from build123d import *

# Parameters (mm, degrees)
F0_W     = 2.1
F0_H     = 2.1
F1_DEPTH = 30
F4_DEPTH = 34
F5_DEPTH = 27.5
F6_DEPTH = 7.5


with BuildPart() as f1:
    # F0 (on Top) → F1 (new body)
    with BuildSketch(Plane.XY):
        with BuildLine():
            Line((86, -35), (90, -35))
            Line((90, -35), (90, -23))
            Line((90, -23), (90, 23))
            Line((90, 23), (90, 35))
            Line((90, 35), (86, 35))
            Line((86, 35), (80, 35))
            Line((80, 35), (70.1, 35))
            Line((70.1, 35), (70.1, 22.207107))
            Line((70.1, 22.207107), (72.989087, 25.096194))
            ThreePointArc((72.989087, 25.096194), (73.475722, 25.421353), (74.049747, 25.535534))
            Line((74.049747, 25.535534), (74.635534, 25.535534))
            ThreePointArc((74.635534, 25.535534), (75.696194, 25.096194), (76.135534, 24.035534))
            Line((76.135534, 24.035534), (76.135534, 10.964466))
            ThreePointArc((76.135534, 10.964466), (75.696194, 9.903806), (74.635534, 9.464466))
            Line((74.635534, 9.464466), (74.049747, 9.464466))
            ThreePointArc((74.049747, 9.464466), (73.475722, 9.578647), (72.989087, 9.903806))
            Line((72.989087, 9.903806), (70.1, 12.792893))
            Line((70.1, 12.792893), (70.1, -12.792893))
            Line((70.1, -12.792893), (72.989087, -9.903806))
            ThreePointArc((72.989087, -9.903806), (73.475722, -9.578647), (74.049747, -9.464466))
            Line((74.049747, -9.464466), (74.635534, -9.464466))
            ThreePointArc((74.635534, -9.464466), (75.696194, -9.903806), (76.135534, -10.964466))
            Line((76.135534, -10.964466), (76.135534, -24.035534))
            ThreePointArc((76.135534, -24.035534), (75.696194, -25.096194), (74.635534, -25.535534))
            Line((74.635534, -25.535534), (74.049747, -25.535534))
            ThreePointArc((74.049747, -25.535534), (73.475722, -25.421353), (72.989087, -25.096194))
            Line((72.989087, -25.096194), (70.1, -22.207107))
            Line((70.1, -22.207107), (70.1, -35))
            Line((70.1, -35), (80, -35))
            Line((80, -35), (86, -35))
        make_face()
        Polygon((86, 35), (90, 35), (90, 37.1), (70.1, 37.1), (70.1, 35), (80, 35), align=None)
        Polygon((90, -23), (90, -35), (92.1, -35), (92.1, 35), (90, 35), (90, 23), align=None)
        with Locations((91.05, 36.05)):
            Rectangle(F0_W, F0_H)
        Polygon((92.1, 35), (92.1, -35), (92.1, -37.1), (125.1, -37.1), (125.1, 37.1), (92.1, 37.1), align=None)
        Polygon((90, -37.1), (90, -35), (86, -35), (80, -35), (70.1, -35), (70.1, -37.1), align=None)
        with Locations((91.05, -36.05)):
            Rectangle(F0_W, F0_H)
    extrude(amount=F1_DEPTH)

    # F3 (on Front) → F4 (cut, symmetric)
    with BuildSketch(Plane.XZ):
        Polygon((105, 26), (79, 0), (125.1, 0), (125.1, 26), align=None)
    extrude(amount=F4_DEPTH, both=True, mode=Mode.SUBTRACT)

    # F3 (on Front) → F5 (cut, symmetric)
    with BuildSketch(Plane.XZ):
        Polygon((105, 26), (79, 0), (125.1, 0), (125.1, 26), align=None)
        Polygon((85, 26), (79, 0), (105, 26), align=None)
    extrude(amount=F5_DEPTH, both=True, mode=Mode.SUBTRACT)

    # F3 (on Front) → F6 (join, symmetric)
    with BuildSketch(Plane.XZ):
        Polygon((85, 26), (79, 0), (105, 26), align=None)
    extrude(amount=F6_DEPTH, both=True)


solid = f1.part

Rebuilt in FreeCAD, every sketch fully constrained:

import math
import FreeCAD as App
import Part
import Sketcher
Q = App.Units.Quantity

doc = App.newDocument("Part")
body = doc.addObject("PartDesign::Body", "Body")

# Sketch on XY plane
sketch1 = doc.addObject("Sketcher::SketchObject", "Sketch")
body.addObject(sketch1)
sketch1.AttachmentSupport = (doc.XY_Plane, [""])
sketch1.MapMode = "FlatFace"
sketch1.addGeometry(Part.LineSegment(App.Vector(70.1, 37.1, 0), App.Vector(70.1, 22.207107, 0)), False)
sketch1.addGeometry(Part.LineSegment(App.Vector(70.1, 22.207107, 0), App.Vector(72.989087, 25.096194, 0)), False)
sketch1.addGeometry(Part.ArcOfCircle(Part.Circle(App.Vector(74.049748, 24.035532, 0), App.Vector(0, 0, 1), 1.500002), math.radians(90.000052), math.radians(134.999971)), False)
sketch1.addGeometry(Part.LineSegment(App.Vector(74.049747, 25.535534, 0), App.Vector(74.635534, 25.535534, 0)), False)
sketch1.addGeometry(Part.ArcOfCircle(Part.Circle(App.Vector(74.635533, 24.035533, 0), App.Vector(0, 0, 1), 1.500001), math.radians(0.000022), math.radians(89.999978)), False)
sketch1.addGeometry(Part.LineSegment(App.Vector(76.135534, 24.035534, 0), App.Vector(76.135534, 10.964466, 0)), False)
sketch1.addGeometry(Part.ArcOfCircle(Part.Circle(App.Vector(74.635533, 10.964467, 0), App.Vector(0, 0, 1), 1.500001), math.radians(-89.999978), math.radians(-0.000022)), False)
sketch1.addGeometry(Part.LineSegment(App.Vector(74.635534, 9.464466, 0), App.Vector(74.049747, 9.464466, 0)), False)
sketch1.addGeometry(Part.ArcOfCircle(Part.Circle(App.Vector(74.049748, 10.964468, 0), App.Vector(0, 0, 1), 1.500002), math.radians(-134.999971), math.radians(-90.000052)), False)
sketch1.addGeometry(Part.LineSegment(App.Vector(72.989087, 9.903806, 0), App.Vector(70.1, 12.792893, 0)), False)
sketch1.addGeometry(Part.LineSegment(App.Vector(70.1, 12.792893, 0), App.Vector(70.1, -12.792893, 0)), False)
sketch1.addGeometry(Part.LineSegment(App.Vector(70.1, -12.792893, 0), App.Vector(72.989087, -9.903806, 0)), False)
sketch1.addGeometry(Part.ArcOfCircle(Part.Circle(App.Vector(74.049748, -10.964468, 0), App.Vector(0, 0, 1), 1.500002), math.radians(90.000052), math.radians(134.999971)), False)
sketch1.addGeometry(Part.LineSegment(App.Vector(74.049747, -9.464466, 0), App.Vector(74.635534, -9.464466, 0)), False)
sketch1.addGeometry(Part.ArcOfCircle(Part.Circle(App.Vector(74.635533, -10.964467, 0), App.Vector(0, 0, 1), 1.500001), math.radians(0.000022), math.radians(89.999978)), False)
sketch1.addGeometry(Part.LineSegment(App.Vector(76.135534, -10.964466, 0), App.Vector(76.135534, -24.035534, 0)), False)
sketch1.addGeometry(Part.ArcOfCircle(Part.Circle(App.Vector(74.635533, -24.035533, 0), App.Vector(0, 0, 1), 1.500001), math.radians(-89.999978), math.radians(-0.000022)), False)
sketch1.addGeometry(Part.LineSegment(App.Vector(74.635534, -25.535534, 0), App.Vector(74.049747, -25.535534, 0)), False)
sketch1.addGeometry(Part.ArcOfCircle(Part.Circle(App.Vector(74.049748, -24.035532, 0), App.Vector(0, 0, 1), 1.500002), math.radians(-134.999971), math.radians(-90.000052)), False)
sketch1.addGeometry(Part.LineSegment(App.Vector(72.989087, -25.096194, 0), App.Vector(70.1, -22.207107, 0)), False)
sketch1.addGeometry(Part.LineSegment(App.Vector(70.1, -22.207107, 0), App.Vector(70.1, -37.1, 0)), False)
sketch1.addGeometry(Part.LineSegment(App.Vector(70.1, -37.1, 0), App.Vector(125.1, -37.1, 0)), False)
sketch1.addGeometry(Part.LineSegment(App.Vector(125.1, -37.1, 0), App.Vector(125.1, 37.1, 0)), False)
sketch1.addGeometry(Part.LineSegment(App.Vector(125.1, 37.1, 0), App.Vector(70.1, 37.1, 0)), False)
sketch1.addConstraint(Sketcher.Constraint("Coincident", 0, 2, 1, 1))
sketch1.addConstraint(Sketcher.Constraint("Tangent", 1, 2, 2, 2))
sketch1.addConstraint(Sketcher.Constraint("Tangent", 2, 1, 3, 1))
sketch1.addConstraint(Sketcher.Constraint("Tangent", 3, 2, 4, 2))
sketch1.addConstraint(Sketcher.Constraint("Tangent", 4, 1, 5, 1))
sketch1.addConstraint(Sketcher.Constraint("Tangent", 5, 2, 6, 2))
sketch1.addConstraint(Sketcher.Constraint("Tangent", 6, 1, 7, 1))
sketch1.addConstraint(Sketcher.Constraint("Tangent", 7, 2, 8, 2))
sketch1.addConstraint(Sketcher.Constraint("Tangent", 8, 1, 9, 1))
sketch1.addConstraint(Sketcher.Constraint("Coincident", 9, 2, 10, 1))
sketch1.addConstraint(Sketcher.Constraint("Coincident", 10, 2, 11, 1))
sketch1.addConstraint(Sketcher.Constraint("Tangent", 11, 2, 12, 2))
sketch1.addConstraint(Sketcher.Constraint("Tangent", 12, 1, 13, 1))
sketch1.addConstraint(Sketcher.Constraint("Tangent", 13, 2, 14, 2))
sketch1.addConstraint(Sketcher.Constraint("Tangent", 14, 1, 15, 1))
sketch1.addConstraint(Sketcher.Constraint("Tangent", 15, 2, 16, 2))
sketch1.addConstraint(Sketcher.Constraint("Tangent", 16, 1, 17, 1))
sketch1.addConstraint(Sketcher.Constraint("Tangent", 17, 2, 18, 2))
sketch1.addConstraint(Sketcher.Constraint("Tangent", 18, 1, 19, 1))
sketch1.addConstraint(Sketcher.Constraint("Coincident", 19, 2, 20, 1))
sketch1.addConstraint(Sketcher.Constraint("Coincident", 20, 2, 21, 1))
sketch1.addConstraint(Sketcher.Constraint("Coincident", 21, 2, 22, 1))
sketch1.addConstraint(Sketcher.Constraint("Coincident", 22, 2, 23, 1))
sketch1.addConstraint(Sketcher.Constraint("Coincident", 23, 2, 0, 1))
sketch1.addConstraint(Sketcher.Constraint("Vertical", 0))
sketch1.addConstraint(Sketcher.Constraint("Horizontal", 3))
sketch1.addConstraint(Sketcher.Constraint("Vertical", 5))
sketch1.addConstraint(Sketcher.Constraint("Horizontal", 7))
sketch1.addConstraint(Sketcher.Constraint("Vertical", 10))
sketch1.addConstraint(Sketcher.Constraint("Horizontal", 13))
sketch1.addConstraint(Sketcher.Constraint("Vertical", 15))
sketch1.addConstraint(Sketcher.Constraint("Horizontal", 17))
sketch1.addConstraint(Sketcher.Constraint("Vertical", 20))
sketch1.addConstraint(Sketcher.Constraint("Horizontal", 21))
sketch1.addConstraint(Sketcher.Constraint("Vertical", 22))
sketch1.addConstraint(Sketcher.Constraint("Horizontal", 23))
sketch1.addConstraint(Sketcher.Constraint("Equal", 2, 4))
sketch1.addConstraint(Sketcher.Constraint("Equal", 4, 6))
sketch1.addConstraint(Sketcher.Constraint("Equal", 6, 8))
sketch1.addConstraint(Sketcher.Constraint("Equal", 8, 12))
sketch1.addConstraint(Sketcher.Constraint("Equal", 12, 14))
sketch1.addConstraint(Sketcher.Constraint("Equal", 14, 16))
sketch1.addConstraint(Sketcher.Constraint("Equal", 16, 18))
sketch1.addConstraint(Sketcher.Constraint("Symmetric", 8, 3, 12, 3, -1))
sketch1.addConstraint(Sketcher.Constraint("Symmetric", 4, 3, 16, 3, -1))
sketch1.addConstraint(Sketcher.Constraint("Symmetric", 1, 2, 18, 1, -1))
sketch1.addConstraint(Sketcher.Constraint("Symmetric", 20, 2, 23, 2, -1))
sketch1.addConstraint(Sketcher.Constraint("Perpendicular", 1, 9))
sketch1.addConstraint(Sketcher.Constraint("Perpendicular", 9, 11))
sketch1.addConstraint(Sketcher.Constraint("Perpendicular", 11, 19))
sketch1.addConstraint(Sketcher.Constraint("Vertical", 2, 3, 8, 3))
sketch1.addConstraint(Sketcher.Constraint("Vertical", 0, 2, 9, 2))
sketch1.addConstraint(Sketcher.Constraint("Radius", 4, Q("1.500001 mm")))
sketch1.addConstraint(Sketcher.Constraint("DistanceX", 21, 1, 21, 2, Q("55 mm")))
sketch1.addConstraint(Sketcher.Constraint("DistanceY", 22, 1, 22, 2, Q("74.2 mm")))
sketch1.addConstraint(Sketcher.Constraint("DistanceY", 12, 3, 2, 3, Q("35 mm")))
sketch1.addConstraint(Sketcher.Constraint("DistanceX", -1, 1, 0, 2, Q("70.1 mm")))
sketch1.addConstraint(Sketcher.Constraint("DistanceX", 3, 1, 3, 2, Q("0.585787 mm")))
sketch1.addConstraint(Sketcher.Constraint("DistanceY", 0, 2, 0, 1, Q("14.892893 mm")))
sketch1.addConstraint(Sketcher.Constraint("DistanceY", 5, 2, 5, 1, Q("13.071068 mm")))
pad1 = doc.addObject("PartDesign::Pad", "Pad")
body.addObject(pad1)
pad1.Profile = sketch1
pad1.Length = 30

# Sketch on XZ plane
sketch2 = doc.addObject("Sketcher::SketchObject", "Sketch001")
body.addObject(sketch2)
sketch2.AttachmentSupport = (doc.XZ_Plane, [""])
sketch2.MapMode = "FlatFace"
sketch2.addGeometry(Part.LineSegment(App.Vector(105, 26, 0), App.Vector(79, 0, 0)), False)
sketch2.addGeometry(Part.LineSegment(App.Vector(79, 0, 0), App.Vector(125.1, 0, 0)), False)
sketch2.addGeometry(Part.LineSegment(App.Vector(125.1, 0, 0), App.Vector(125.1, 26, 0)), False)
sketch2.addGeometry(Part.LineSegment(App.Vector(125.1, 26, 0), App.Vector(105, 26, 0)), False)
sketch2.addConstraint(Sketcher.Constraint("Coincident", 0, 2, 1, 1))
sketch2.addConstraint(Sketcher.Constraint("Coincident", 1, 2, 2, 1))
sketch2.addConstraint(Sketcher.Constraint("Coincident", 2, 2, 3, 1))
sketch2.addConstraint(Sketcher.Constraint("Coincident", 3, 2, 0, 1))
sketch2.addConstraint(Sketcher.Constraint("Horizontal", 1))
sketch2.addConstraint(Sketcher.Constraint("Vertical", 2))
sketch2.addConstraint(Sketcher.Constraint("Horizontal", 3))
sketch2.addConstraint(Sketcher.Constraint("PointOnObject", 0, 2, -1))
sketch2.addConstraint(Sketcher.Constraint("DistanceY", 2, 1, 2, 2, Q("26 mm")))
sketch2.addConstraint(Sketcher.Constraint("Angle", 0, Q("-135 deg")))
sketch2.addConstraint(Sketcher.Constraint("DistanceX", 1, 1, 1, 2, Q("46.1 mm")))
sketch2.addConstraint(Sketcher.Constraint("DistanceX", -1, 1, 0, 2, Q("79 mm")))
pocket1 = doc.addObject("PartDesign::Pocket", "Pocket")
body.addObject(pocket1)
pocket1.Profile = sketch2
pocket1.Length = 68
pocket1.Midplane = True

# Sketch on XZ plane
sketch3 = doc.addObject("Sketcher::SketchObject", "Sketch002")
body.addObject(sketch3)
sketch3.AttachmentSupport = (doc.XZ_Plane, [""])
sketch3.MapMode = "FlatFace"
sketch3.addGeometry(Part.LineSegment(App.Vector(79, 0, 0), App.Vector(125.1, 0, 0)), False)
sketch3.addGeometry(Part.LineSegment(App.Vector(125.1, 0, 0), App.Vector(125.1, 26, 0)), False)
sketch3.addGeometry(Part.LineSegment(App.Vector(125.1, 26, 0), App.Vector(85, 26, 0)), False)
sketch3.addGeometry(Part.LineSegment(App.Vector(85, 26, 0), App.Vector(79, 0, 0)), False)
sketch3.addConstraint(Sketcher.Constraint("Coincident", 0, 2, 1, 1))
sketch3.addConstraint(Sketcher.Constraint("Coincident", 1, 2, 2, 1))
sketch3.addConstraint(Sketcher.Constraint("Coincident", 2, 2, 3, 1))
sketch3.addConstraint(Sketcher.Constraint("Coincident", 3, 2, 0, 1))
sketch3.addConstraint(Sketcher.Constraint("Horizontal", 0))
sketch3.addConstraint(Sketcher.Constraint("Vertical", 1))
sketch3.addConstraint(Sketcher.Constraint("Horizontal", 2))
sketch3.addConstraint(Sketcher.Constraint("PointOnObject", 0, 2, -1))
sketch3.addConstraint(Sketcher.Constraint("DistanceY", 1, 1, 1, 2, Q("26 mm")))
sketch3.addConstraint(Sketcher.Constraint("DistanceX", 0, 1, 0, 2, Q("46.1 mm")))
sketch3.addConstraint(Sketcher.Constraint("DistanceX", 2, 2, 2, 1, Q("40.1 mm")))
sketch3.addConstraint(Sketcher.Constraint("DistanceX", -1, 1, 2, 2, Q("85 mm")))
pocket2 = doc.addObject("PartDesign::Pocket", "Pocket001")
body.addObject(pocket2)
pocket2.Profile = sketch3
pocket2.Length = 55
pocket2.Midplane = True

# Sketch on XZ plane
sketch4 = doc.addObject("Sketcher::SketchObject", "Sketch003")
body.addObject(sketch4)
sketch4.AttachmentSupport = (doc.XZ_Plane, [""])
sketch4.MapMode = "FlatFace"
sketch4.addGeometry(Part.LineSegment(App.Vector(85, 26, 0), App.Vector(79, 0, 0)), False)
sketch4.addGeometry(Part.LineSegment(App.Vector(79, 0, 0), App.Vector(105, 26, 0)), False)
sketch4.addGeometry(Part.LineSegment(App.Vector(105, 26, 0), App.Vector(85, 26, 0)), False)
sketch4.addConstraint(Sketcher.Constraint("Coincident", 0, 2, 1, 1))
sketch4.addConstraint(Sketcher.Constraint("Coincident", 1, 2, 2, 1))
sketch4.addConstraint(Sketcher.Constraint("Coincident", 2, 2, 0, 1))
sketch4.addConstraint(Sketcher.Constraint("Horizontal", 2))
sketch4.addConstraint(Sketcher.Constraint("PointOnObject", 0, 2, -1))
sketch4.addConstraint(Sketcher.Constraint("DistanceX", 2, 2, 2, 1, Q("20 mm")))
sketch4.addConstraint(Sketcher.Constraint("Angle", 1, Q("45 deg")))
sketch4.addConstraint(Sketcher.Constraint("DistanceX", -1, 1, 0, 2, Q("79 mm")))
sketch4.addConstraint(Sketcher.Constraint("DistanceX", -1, 1, 1, 2, Q("105 mm")))
pad2 = doc.addObject("PartDesign::Pad", "Pad001")
body.addObject(pad2)
pad2.Profile = sketch4
pad2.Length = 15
pad2.Midplane = True

doc.recompute()
